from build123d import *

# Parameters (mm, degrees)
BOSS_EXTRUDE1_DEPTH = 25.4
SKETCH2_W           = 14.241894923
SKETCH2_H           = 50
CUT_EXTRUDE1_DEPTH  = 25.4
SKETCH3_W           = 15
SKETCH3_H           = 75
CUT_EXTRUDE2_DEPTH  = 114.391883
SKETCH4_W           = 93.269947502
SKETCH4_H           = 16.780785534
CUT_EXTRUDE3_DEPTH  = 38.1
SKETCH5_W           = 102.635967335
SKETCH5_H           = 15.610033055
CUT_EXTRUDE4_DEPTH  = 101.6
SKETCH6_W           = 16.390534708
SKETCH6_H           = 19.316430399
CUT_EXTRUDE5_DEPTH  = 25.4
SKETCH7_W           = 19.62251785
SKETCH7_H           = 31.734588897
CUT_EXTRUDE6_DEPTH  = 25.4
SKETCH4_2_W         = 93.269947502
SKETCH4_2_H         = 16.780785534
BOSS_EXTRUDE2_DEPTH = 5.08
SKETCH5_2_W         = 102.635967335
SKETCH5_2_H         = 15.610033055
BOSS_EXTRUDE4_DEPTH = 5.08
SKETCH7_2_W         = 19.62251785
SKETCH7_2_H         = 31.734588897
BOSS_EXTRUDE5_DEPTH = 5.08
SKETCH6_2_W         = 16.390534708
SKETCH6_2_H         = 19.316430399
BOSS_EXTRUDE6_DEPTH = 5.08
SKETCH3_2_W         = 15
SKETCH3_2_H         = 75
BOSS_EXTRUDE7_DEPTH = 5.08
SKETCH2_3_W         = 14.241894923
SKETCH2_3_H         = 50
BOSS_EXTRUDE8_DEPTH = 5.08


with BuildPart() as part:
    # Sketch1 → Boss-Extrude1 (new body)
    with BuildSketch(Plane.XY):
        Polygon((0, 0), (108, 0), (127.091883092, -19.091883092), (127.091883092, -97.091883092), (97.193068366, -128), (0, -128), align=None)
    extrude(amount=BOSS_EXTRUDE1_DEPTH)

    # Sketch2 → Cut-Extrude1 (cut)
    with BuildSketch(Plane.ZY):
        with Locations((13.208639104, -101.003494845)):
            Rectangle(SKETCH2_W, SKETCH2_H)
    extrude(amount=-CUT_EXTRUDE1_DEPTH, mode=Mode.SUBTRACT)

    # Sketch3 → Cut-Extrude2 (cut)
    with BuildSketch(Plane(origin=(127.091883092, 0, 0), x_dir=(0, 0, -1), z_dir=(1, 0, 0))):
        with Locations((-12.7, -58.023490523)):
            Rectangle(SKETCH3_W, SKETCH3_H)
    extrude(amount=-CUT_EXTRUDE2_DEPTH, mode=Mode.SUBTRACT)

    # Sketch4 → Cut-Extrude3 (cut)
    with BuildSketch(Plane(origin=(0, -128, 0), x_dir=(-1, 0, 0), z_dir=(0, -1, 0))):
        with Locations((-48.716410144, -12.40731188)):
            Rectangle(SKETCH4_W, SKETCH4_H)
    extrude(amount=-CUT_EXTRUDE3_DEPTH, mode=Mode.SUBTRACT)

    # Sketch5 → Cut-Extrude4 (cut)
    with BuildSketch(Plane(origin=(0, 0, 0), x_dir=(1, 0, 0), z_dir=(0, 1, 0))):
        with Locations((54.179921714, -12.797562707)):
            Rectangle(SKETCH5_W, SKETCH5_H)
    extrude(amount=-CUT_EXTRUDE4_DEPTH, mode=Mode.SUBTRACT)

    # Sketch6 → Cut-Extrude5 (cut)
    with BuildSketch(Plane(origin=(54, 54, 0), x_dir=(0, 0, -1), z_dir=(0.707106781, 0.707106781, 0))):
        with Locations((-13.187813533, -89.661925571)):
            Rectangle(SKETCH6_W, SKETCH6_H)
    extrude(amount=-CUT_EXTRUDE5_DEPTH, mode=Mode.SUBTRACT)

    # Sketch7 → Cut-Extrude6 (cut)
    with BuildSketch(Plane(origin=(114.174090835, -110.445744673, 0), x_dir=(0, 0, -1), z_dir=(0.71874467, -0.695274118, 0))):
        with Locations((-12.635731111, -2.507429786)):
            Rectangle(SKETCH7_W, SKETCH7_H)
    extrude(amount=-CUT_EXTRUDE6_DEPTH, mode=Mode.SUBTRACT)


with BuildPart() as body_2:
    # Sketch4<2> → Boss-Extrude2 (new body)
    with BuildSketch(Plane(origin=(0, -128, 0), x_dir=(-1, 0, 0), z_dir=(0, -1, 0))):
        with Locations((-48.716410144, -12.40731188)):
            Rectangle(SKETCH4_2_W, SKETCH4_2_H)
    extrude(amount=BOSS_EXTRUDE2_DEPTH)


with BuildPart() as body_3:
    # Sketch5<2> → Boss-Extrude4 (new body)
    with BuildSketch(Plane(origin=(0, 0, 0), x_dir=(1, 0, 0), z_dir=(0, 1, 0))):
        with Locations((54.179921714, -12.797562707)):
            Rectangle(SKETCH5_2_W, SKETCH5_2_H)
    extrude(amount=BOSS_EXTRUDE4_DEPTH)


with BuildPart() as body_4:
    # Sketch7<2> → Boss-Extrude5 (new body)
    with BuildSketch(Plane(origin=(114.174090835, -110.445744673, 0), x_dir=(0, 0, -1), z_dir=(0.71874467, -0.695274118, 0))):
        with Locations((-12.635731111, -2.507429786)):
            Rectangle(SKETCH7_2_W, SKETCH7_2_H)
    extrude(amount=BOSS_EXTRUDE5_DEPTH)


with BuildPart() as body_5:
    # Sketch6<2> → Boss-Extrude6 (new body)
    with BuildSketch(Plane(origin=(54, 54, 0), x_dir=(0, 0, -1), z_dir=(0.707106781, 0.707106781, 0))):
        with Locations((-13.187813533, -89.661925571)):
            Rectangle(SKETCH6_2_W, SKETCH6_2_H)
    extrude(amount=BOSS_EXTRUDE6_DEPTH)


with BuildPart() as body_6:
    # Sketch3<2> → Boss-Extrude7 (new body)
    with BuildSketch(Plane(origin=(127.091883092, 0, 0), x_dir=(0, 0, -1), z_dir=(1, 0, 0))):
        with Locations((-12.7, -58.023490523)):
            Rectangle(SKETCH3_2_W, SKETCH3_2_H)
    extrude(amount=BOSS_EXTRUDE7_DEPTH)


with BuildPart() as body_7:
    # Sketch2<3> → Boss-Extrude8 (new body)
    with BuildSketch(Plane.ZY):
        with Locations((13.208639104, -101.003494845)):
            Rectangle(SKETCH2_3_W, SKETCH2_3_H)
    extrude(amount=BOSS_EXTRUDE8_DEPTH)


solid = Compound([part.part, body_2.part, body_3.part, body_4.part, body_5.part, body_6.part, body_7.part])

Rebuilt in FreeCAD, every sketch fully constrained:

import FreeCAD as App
import Part
import Sketcher

V = App.Vector
Q = App.Units.Quantity

doc = App.newDocument("Part")
params = doc.addObject("Spreadsheet::Sheet", "Params")
for row, (alias, value) in enumerate([
    ("sketch1_width", "108 mm"),
    ("sketch1_height", "128 mm"),
    ("sketch1_height2", "78 mm"),
    ("sketch1_length", "27 mm"),
    ("pad1_length", "25.4 mm"),
    ("sketch2_width", "50 mm"),
    ("pocket1_length", "25.4 mm"),
    ("sketch3_width", "75 mm"),
    ("sketch3_height", "15 mm"),
    ("pocket2_length", "114.391883 mm"),
    ("pocket3_length", "38.1 mm"),
    ("pocket4_length", "101.6 mm"),
    ("pocket5_length", "25.4 mm"),
    ("pocket6_length", "25.4 mm"),
    ("pad2_length", "5.08 mm"),
    ("pad3_length", "5.08 mm"),
    ("pad4_length", "5.08 mm"),
    ("pad5_length", "5.08 mm"),
    ("sketch12_width", "75 mm"),
    ("sketch12_height", "15 mm"),
    ("pad6_length", "5.08 mm"),
    ("sketch13_width", "50 mm"),
    ("pad7_length", "5.08 mm"),
], start=1):
    params.set(f"A{row}", alias)
    params.set(f"B{row}", "=" + value)
    params.setAlias(f"B{row}", alias)

body = doc.addObject("PartDesign::Body", "Body")

# Sketch on XY plane
sketch1 = body.newObject("Sketcher::SketchObject", "Sketch")
sketch1.AttachmentSupport = (doc.getObject("XY_Plane"), [""])
sketch1.MapMode = "FlatFace"
sketch1.addGeometry(Part.LineSegment(V(108, 0, 0), V(0, 0, 0)), False)
sketch1.addGeometry(Part.LineSegment(V(0, 0, 0), V(0, -128, 0)), False)
sketch1.addGeometry(Part.LineSegment(V(0, -128, 0), V(97, -128, 0)), False)
sketch1.addGeometry(Part.LineSegment(V(97, -128, 0), V(127, -97, 0)), False)
sketch1.addGeometry(Part.LineSegment(V(127, -97, 0), V(127, -19, 0)), False)
sketch1.addGeometry(Part.LineSegment(V(127, -19, 0), V(108, 0, 0)), False)
sketch1.addConstraint(Sketcher.Constraint("Coincident", 0, 2, 1, 1))
sketch1.addConstraint(Sketcher.Constraint("Coincident", 1, 2, 2, 1))
sketch1.addConstraint(Sketcher.Constraint("Coincident", 2, 2, 3, 1))
sketch1.addConstraint(Sketcher.Constraint("Coincident", 3, 2, 4, 1))
sketch1.addConstraint(Sketcher.Constraint("Coincident", 4, 2, 5, 1))
sketch1.addConstraint(Sketcher.Constraint("Coincident", 5, 2, 0, 1))
sketch1.addConstraint(Sketcher.Constraint("Horizontal", 0))
sketch1.addConstraint(Sketcher.Constraint("Vertical", 1))
sketch1.addConstraint(Sketcher.Constraint("Horizontal", 2))
sketch1.addConstraint(Sketcher.Constraint("Vertical", 4))
sketch1.addConstraint(Sketcher.Constraint("Coincident", 0, 2, -1, 1))
sketch1.addConstraint(Sketcher.Constraint("DistanceX", 0, 2, 0, 1, 108.0))
sketch1.addConstraint(Sketcher.Constraint("DistanceY", 1, 2, 1, 1, 128.0))
sketch1.addConstraint(Sketcher.Constraint("DistanceY", 4, 1, 4, 2, 78.0))
sketch1.addConstraint(Sketcher.Constraint("Angle", 5, Q("135 deg")))
sketch1.addConstraint(Sketcher.Constraint("Distance", 5, 27.0))
sketch1.addConstraint(Sketcher.Constraint("DistanceX", 2, 1, 2, 2, 97.193068))
sketch1.setExpression("Constraints[11]", "Params.sketch1_width")
sketch1.setExpression("Constraints[12]", "Params.sketch1_height")
sketch1.setExpression("Constraints[13]", "Params.sketch1_height2")
sketch1.setExpression("Constraints[15]", "Params.sketch1_length")
pad1 = body.newObject("PartDesign::Pad", "Pad")
pad1.Profile = sketch1
pad1.setExpression("Length", "Params.pad1_length")

# Sketch on YZ plane
sketch2 = body.newObject("Sketcher::SketchObject", "Sketch001")
sketch2.AttachmentSupport = (doc.getObject("YZ_Plane"), [""])
sketch2.MapMode = "FlatFace"
sketch2.addGeometry(Part.LineSegment(V(-76, 6, 0), V(-126, 6, 0)), False)
sketch2.addGeometry(Part.LineSegment(V(-126, 6, 0), V(-126, 20, 0)), False)
sketch2.addGeometry(Part.LineSegment(V(-126, 20, 0), V(-76, 20, 0)), False)
sketch2.addGeometry(Part.LineSegment(V(-76, 20, 0), V(-76, 6, 0)), False)
sketch2.addConstraint(Sketcher.Constraint("Coincident", 0, 2, 1, 1))
sketch2.addConstraint(Sketcher.Constraint("Coincident", 1, 2, 2, 1))
sketch2.addConstraint(Sketcher.Constraint("Coincident", 2, 2, 3, 1))
sketch2.addConstraint(Sketcher.Constraint("Coincident", 3, 2, 0, 1))
sketch2.addConstraint(Sketcher.Constraint("Horizontal", 0))
sketch2.addConstraint(Sketcher.Constraint("Vertical", 1))
sketch2.addConstraint(Sketcher.Constraint("Horizontal", 2))
sketch2.addConstraint(Sketcher.Constraint("Vertical", 3))
sketch2.addConstraint(Sketcher.Constraint("DistanceX", 0, 2, 0, 1, 50.0))
sketch2.addConstraint(Sketcher.Constraint("DistanceY", 1, 1, 1, 2, 14.241895))
sketch2.addConstraint(Sketcher.Constraint("DistanceY", -1, 1, 0, 2, 6.087692))
sketch2.addConstraint(Sketcher.Constraint("DistanceX", 0, 2, -1, 1, 126.003495))
sketch2.setExpression("Constraints[8]", "Params.sketch2_width")
pocket1 = body.newObject("PartDesign::Pocket", "Pocket")
pocket1.Profile = sketch2
pocket1.setExpression("Length", "Params.pocket1_length")
pocket1.Reversed = True

# Sketch on YZ plane
sketch3 = body.newObject("Sketcher::SketchObject", "Sketch002")
sketch3.AttachmentSupport = (doc.getObject("YZ_Plane"), [""])
sketch3.MapMode = "FlatFace"
sketch3.AttachmentOffset = App.Placement(V(0, 0, 127.091883), App.Rotation())
sketch3.addGeometry(Part.LineSegment(V(-21, 20, 0), V(-96, 20, 0)), False)
sketch3.addGeometry(Part.LineSegment(V(-96, 20, 0), V(-96, 5, 0)), False)
sketch3.addGeometry(Part.LineSegment(V(-96, 5, 0), V(-21, 5, 0)), False)
sketch3.addGeometry(Part.LineSegment(V(-21, 5, 0), V(-21, 20, 0)), False)
sketch3.addConstraint(Sketcher.Constraint("Coincident", 0, 2, 1, 1))
sketch3.addConstraint(Sketcher.Constraint("Coincident", 1, 2, 2, 1))
sketch3.addConstraint(Sketcher.Constraint("Coincident", 2, 2, 3, 1))
sketch3.addConstraint(Sketcher.Constraint("Coincident", 3, 2, 0, 1))
sketch3.addConstraint(Sketcher.Constraint("Horizontal", 0))
sketch3.addConstraint(Sketcher.Constraint("Vertical", 1))
sketch3.addConstraint(Sketcher.Constraint("Horizontal", 2))
sketch3.addConstraint(Sketcher.Constraint("Vertical", 3))
sketch3.addConstraint(Sketcher.Constraint("DistanceX", 0, 2, 0, 1, 75.0))
sketch3.addConstraint(Sketcher.Constraint("DistanceY", 1, 2, 1, 1, 15.0))
sketch3.addConstraint(Sketcher.Constraint("DistanceY", -1, 1, 0, 2, 20.2))
sketch3.addConstraint(Sketcher.Constraint("DistanceX", 0, 2, -1, 1, 95.523491))
sketch3.setExpression("Constraints[8]", "Params.sketch3_width")
sketch3.setExpression("Constraints[9]", "Params.sketch3_height")
pocket2 = body.newObject("PartDesign::Pocket", "Pocket001")
pocket2.Profile = sketch3
pocket2.setExpression("Length", "Params.pocket2_length")

# Sketch on XZ plane
sketch4 = body.newObject("Sketcher::SketchObject", "Sketch003")
sketch4.AttachmentSupport = (doc.getObject("XZ_Plane"), [""])
sketch4.MapMode = "FlatFace"
sketch4.AttachmentOffset = App.Placement(V(0, 0, 128), App.Rotation())
sketch4.addGeometry(Part.LineSegment(V(95, 4, 0), V(95, 21, 0)), False)
sketch4.addGeometry(Part.LineSegment(V(95, 21, 0), V(2, 21, 0)), False)
sketch4.addGeometry(Part.LineSegment(V(2, 21, 0), V(2, 4, 0)), False)
sketch4.addGeometry(Part.LineSegment(V(2, 4, 0), V(95, 4, 0)), False)
sketch4.addConstraint(Sketcher.Constraint("Coincident", 0, 2, 1, 1))
sketch4.addConstraint(Sketcher.Constraint("Coincident", 1, 2, 2, 1))
sketch4.addConstraint(Sketcher.Constraint("Coincident", 2, 2, 3, 1))
sketch4.addConstraint(Sketcher.Constraint("Coincident", 3, 2, 0, 1))
sketch4.addConstraint(Sketcher.Constraint("Vertical", 0))
sketch4.addConstraint(Sketcher.Constraint("Horizontal", 1))
sketch4.addConstraint(Sketcher.Constraint("Vertical", 2))
sketch4.addConstraint(Sketcher.Constraint("Horizontal", 3))
sketch4.addConstraint(Sketcher.Constraint("DistanceX", 1, 2, 1, 1, 93.269948))
sketch4.addConstraint(Sketcher.Constraint("DistanceY", 0, 1, 0, 2, 16.780786))
sketch4.addConstraint(Sketcher.Constraint("DistanceY", -1, 1, 2, 2, 4.016919))
sketch4.addConstraint(Sketcher.Constraint("DistanceX", -1, 1, 0, 2, 95.351384))
pocket3 = body.newObject("PartDesign::Pocket", "Pocket002")
pocket3.Profile = sketch4
pocket3.setExpression("Length", "Params.pocket3_length")

# Sketch on XZ plane
sketch5 = body.newObject("Sketcher::SketchObject", "Sketch004")
sketch5.AttachmentSupport = (doc.getObject("XZ_Plane"), [""])
sketch5.MapMode = "FlatFace"
sketch5.addGeometry(Part.LineSegment(V(3, 5, 0), V(3, 21, 0)), False)
sketch5.addGeometry(Part.LineSegment(V(3, 21, 0), V(105, 21, 0)), False)
sketch5.addGeometry(Part.LineSegment(V(105, 21, 0), V(105, 5, 0)), False)
sketch5.addGeometry(Part.LineSegment(V(105, 5, 0), V(3, 5, 0)), False)
sketch5.addConstraint(Sketcher.Constraint("Coincident", 0, 2, 1, 1))
sketch5.addConstraint(Sketcher.Constraint("Coincident", 1, 2, 2, 1))
sketch5.addConstraint(Sketcher.Constraint("Coincident", 2, 2, 3, 1))
sketch5.addConstraint(Sketcher.Constraint("Coincident", 3, 2, 0, 1))
sketch5.addConstraint(Sketcher.Constraint("Vertical", 0))
sketch5.addConstraint(Sketcher.Constraint("Horizontal", 1))
sketch5.addConstraint(Sketcher.Constraint("Vertical", 2))
sketch5.addConstraint(Sketcher.Constraint("Horizontal", 3))
sketch5.addConstraint(Sketcher.Constraint("DistanceX", 1, 1, 1, 2, 102.635967))
sketch5.addConstraint(Sketcher.Constraint("DistanceY", 0, 1, 0, 2, 15.610033))
sketch5.addConstraint(Sketcher.Constraint("DistanceX", -1, 1, 0, 2, 2.861938))
sketch5.addConstraint(Sketcher.Constraint("DistanceY", -1, 1, 0, 2, 20.602579))
pocket4 = body.newObject("PartDesign::Pocket", "Pocket003")
pocket4.Profile = sketch5
pocket4.setExpression("Length", "Params.pocket4_length")
pocket4.Reversed = True

# Sketch on an angled plane
sketch6 = body.newObject("Sketcher::SketchObject", "Sketch005")
sketch6.Placement = App.Placement(V(54, 54, 0), App.Rotation(V(0, 0, -1), V(-0.707106781, 0.707106781, 0), V(0.707106781, 0.707106781, 0), "ZXY"))
sketch6.addGeometry(Part.LineSegment(V(-21, -80, 0), V(-21, -99, 0)), False)
sketch6.addGeometry(Part.LineSegment(V(-21, -99, 0), V(-5, -99, 0)), False)
sketch6.addGeometry(Part.LineSegment(V(-5, -99, 0), V(-5, -80, 0)), False)
sketch6.addGeometry(Part.LineSegment(V(-5, -80, 0), V(-21, -80, 0)), False)
sketch6.addConstraint(Sketcher.Constraint("Coincident", 0, 2, 1, 1))
sketch6.addConstraint(Sketcher.Constraint("Coincident", 1, 2, 2, 1))
sketch6.addConstraint(Sketcher.Constraint("Coincident", 2, 2, 3, 1))
sketch6.addConstraint(Sketcher.Constraint("Coincident", 3, 2, 0, 1))
sketch6.addConstraint(Sketcher.Constraint("Vertical", 0))
sketch6.addConstraint(Sketcher.Constraint("Horizontal", 1))
sketch6.addConstraint(Sketcher.Constraint("Vertical", 2))
sketch6.addConstraint(Sketcher.Constraint("Horizontal", 3))
sketch6.addConstraint(Sketcher.Constraint("DistanceY", 0, 2, 0, 1, 19.31643))
sketch6.addConstraint(Sketcher.Constraint("DistanceX", 1, 1, 1, 2, 16.390535))
sketch6.addConstraint(Sketcher.Constraint("DistanceX", 0, 2, -1, 1, 21.383081))
sketch6.addConstraint(Sketcher.Constraint("DistanceY", 0, 2, -1, 1, 99.320141))
pocket5 = body.newObject("PartDesign::Pocket", "Pocket004")
pocket5.Profile = sketch6
pocket5.setExpression("Length", "Params.pocket5_length")

# Sketch on an angled plane
sketch7 = body.newObject("Sketcher::SketchObject", "Sketch006")
sketch7.Placement = App.Placement(V(114.174091, -110.445745, 0), App.Rotation(V(0, 0, -1), V(0.695274118, 0.71874467, 0), V(0.71874467, -0.695274118, 0), "ZXY"))
sketch7.addGeometry(Part.LineSegment(V(-22, 13, 0), V(-22, -18, 0)), False)
sketch7.addGeometry(Part.LineSegment(V(-22, -18, 0), V(-3, -18, 0)), False)
sketch7.addGeometry(Part.LineSegment(V(-3, -18, 0), V(-3, 13, 0)), False)
sketch7.addGeometry(Part.LineSegment(V(-3, 13, 0), V(-22, 13, 0)), False)
sketch7.addConstraint(Sketcher.Constraint("Coincident", 0, 2, 1, 1))
sketch7.addConstraint(Sketcher.Constraint("Coincident", 1, 2, 2, 1))
sketch7.addConstraint(Sketcher.Constraint("Coincident", 2, 2, 3, 1))
sketch7.addConstraint(Sketcher.Constraint("Coincident", 3, 2, 0, 1))
sketch7.addConstraint(Sketcher.Constraint("Vertical", 0))
sketch7.addConstraint(Sketcher.Constraint("Horizontal", 1))
sketch7.addConstraint(Sketcher.Constraint("Vertical", 2))
sketch7.addConstraint(Sketcher.Constraint("Horizontal", 3))
sketch7.addConstraint(Sketcher.Constraint("DistanceY", 0, 2, 0, 1, 31.734589))
sketch7.addConstraint(Sketcher.Constraint("DistanceX", 1, 1, 1, 2, 19.622518))
sketch7.addConstraint(Sketcher.Constraint("DistanceX", 0, 2, -1, 1, 22.44699))
sketch7.addConstraint(Sketcher.Constraint("DistanceY", 0, 2, -1, 1, 18.374724))
pocket6 = body.newObject("PartDesign::Pocket", "Pocket005")
pocket6.Profile = sketch7
pocket6.setExpression("Length", "Params.pocket6_length")
body2 = doc.addObject("PartDesign::Body", "Body001")

# Sketch on XZ plane
sketch8 = body2.newObject("Sketcher::SketchObject", "Sketch007")
sketch8.AttachmentSupport = (doc.getObject("XZ_Plane001"), [""])
sketch8.MapMode = "FlatFace"
sketch8.AttachmentOffset = App.Placement(V(0, 0, 128), App.Rotation())
sketch8.addGeometry(Part.LineSegment(V(95, 4, 0), V(95, 21, 0)), False)
sketch8.addGeometry(Part.LineSegment(V(95, 21, 0), V(2, 21, 0)), False)
sketch8.addGeometry(Part.LineSegment(V(2, 21, 0), V(2, 4, 0)), False)
sketch8.addGeometry(Part.LineSegment(V(2, 4, 0), V(95, 4, 0)), False)
sketch8.addConstraint(Sketcher.Constraint("Coincident", 0, 2, 1, 1))
sketch8.addConstraint(Sketcher.Constraint("Coincident", 1, 2, 2, 1))
sketch8.addConstraint(Sketcher.Constraint("Coincident", 2, 2, 3, 1))
sketch8.addConstraint(Sketcher.Constraint("Coincident", 3, 2, 0, 1))
sketch8.addConstraint(Sketcher.Constraint("Vertical", 0))
sketch8.addConstraint(Sketcher.Constraint("Horizontal", 1))
sketch8.addConstraint(Sketcher.Constraint("Vertical", 2))
sketch8.addConstraint(Sketcher.Constraint("Horizontal", 3))
sketch8.addConstraint(Sketcher.Constraint("DistanceX", 1, 2, 1, 1, 93.269948))
sketch8.addConstraint(Sketcher.Constraint("DistanceY", 0, 1, 0, 2, 16.780786))
sketch8.addConstraint(Sketcher.Constraint("DistanceY", -1, 1, 2, 2, 4.016919))
sketch8.addConstraint(Sketcher.Constraint("DistanceX", -1, 1, 0, 2, 95.351384))
pad2 = body2.newObject("PartDesign::Pad", "Pad001")
pad2.Profile = sketch8
pad2.setExpression("Length", "Params.pad2_length")
body3 = doc.addObject("PartDesign::Body", "Body002")

# Sketch on XZ plane
sketch9 = body3.newObject("Sketcher::SketchObject", "Sketch008")
sketch9.AttachmentSupport = (doc.getObject("XZ_Plane002"), [""])
sketch9.MapMode = "FlatFace"
sketch9.addGeometry(Part.LineSegment(V(3, 5, 0), V(3, 21, 0)), False)
sketch9.addGeometry(Part.LineSegment(V(3, 21, 0), V(105, 21, 0)), False)
sketch9.addGeometry(Part.LineSegment(V(105, 21, 0), V(105, 5, 0)), False)
sketch9.addGeometry(Part.LineSegment(V(105, 5, 0), V(3, 5, 0)), False)
sketch9.addConstraint(Sketcher.Constraint("Coincident", 0, 2, 1, 1))
sketch9.addConstraint(Sketcher.Constraint("Coincident", 1, 2, 2, 1))
sketch9.addConstraint(Sketcher.Constraint("Coincident", 2, 2, 3, 1))
sketch9.addConstraint(Sketcher.Constraint("Coincident", 3, 2, 0, 1))
sketch9.addConstraint(Sketcher.Constraint("Vertical", 0))
sketch9.addConstraint(Sketcher.Constraint("Horizontal", 1))
sketch9.addConstraint(Sketcher.Constraint("Vertical", 2))
sketch9.addConstraint(Sketcher.Constraint("Horizontal", 3))
sketch9.addConstraint(Sketcher.Constraint("DistanceX", 1, 1, 1, 2, 102.635967))
sketch9.addConstraint(Sketcher.Constraint("DistanceY", 0, 1, 0, 2, 15.610033))
sketch9.addConstraint(Sketcher.Constraint("DistanceX", -1, 1, 0, 2, 2.861938))
sketch9.addConstraint(Sketcher.Constraint("DistanceY", -1, 1, 0, 2, 20.602579))
pad3 = body3.newObject("PartDesign::Pad", "Pad002")
pad3.Profile = sketch9
pad3.setExpression("Length", "Params.pad3_length")
pad3.Reversed = True
body4 = doc.addObject("PartDesign::Body", "Body003")

# Sketch on an angled plane
sketch10 = body4.newObject("Sketcher::SketchObject", "Sketch009")
sketch10.Placement = App.Placement(V(114.174091, -110.445745, 0), App.Rotation(V(0, 0, -1), V(0.695274118, 0.71874467, 0), V(0.71874467, -0.695274118, 0), "ZXY"))
sketch10.addGeometry(Part.LineSegment(V(-22, 13, 0), V(-22, -18, 0)), False)
sketch10.addGeometry(Part.LineSegment(V(-22, -18, 0), V(-3, -18, 0)), False)
sketch10.addGeometry(Part.LineSegment(V(-3, -18, 0), V(-3, 13, 0)), False)
sketch10.addGeometry(Part.LineSegment(V(-3, 13, 0), V(-22, 13, 0)), False)
sketch10.addConstraint(Sketcher.Constraint("Coincident", 0, 2, 1, 1))
sketch10.addConstraint(Sketcher.Constraint("Coincident", 1, 2, 2, 1))
sketch10.addConstraint(Sketcher.Constraint("Coincident", 2, 2, 3, 1))
sketch10.addConstraint(Sketcher.Constraint("Coincident", 3, 2, 0, 1))
sketch10.addConstraint(Sketcher.Constraint("Vertical", 0))
sketch10.addConstraint(Sketcher.Constraint("Horizontal", 1))
sketch10.addConstraint(Sketcher.Constraint("Vertical", 2))
sketch10.addConstraint(Sketcher.Constraint("Horizontal", 3))
sketch10.addConstraint(Sketcher.Constraint("DistanceY", 0, 2, 0, 1, 31.734589))
sketch10.addConstraint(Sketcher.Constraint("DistanceX", 1, 1, 1, 2, 19.622518))
sketch10.addConstraint(Sketcher.Constraint("DistanceX", 0, 2, -1, 1, 22.44699))
sketch10.addConstraint(Sketcher.Constraint("DistanceY", 0, 2, -1, 1, 18.374724))
pad4 = body4.newObject("PartDesign::Pad", "Pad003")
pad4.Profile = sketch10
pad4.setExpression("Length", "Params.pad4_length")
body5 = doc.addObject("PartDesign::Body", "Body004")

# Sketch on an angled plane
sketch11 = body5.newObject("Sketcher::SketchObject", "Sketch010")
sketch11.Placement = App.Placement(V(54, 54, 0), App.Rotation(V(0, 0, -1), V(-0.707106781, 0.707106781, 0), V(0.707106781, 0.707106781, 0), "ZXY"))
sketch11.addGeometry(Part.LineSegment(V(-21, -80, 0), V(-21, -99, 0)), False)
sketch11.addGeometry(Part.LineSegment(V(-21, -99, 0), V(-5, -99, 0)), False)
sketch11.addGeometry(Part.LineSegment(V(-5, -99, 0), V(-5, -80, 0)), False)
sketch11.addGeometry(Part.LineSegment(V(-5, -80, 0), V(-21, -80, 0)), False)
sketch11.addConstraint(Sketcher.Constraint("Coincident", 0, 2, 1, 1))
sketch11.addConstraint(Sketcher.Constraint("Coincident", 1, 2, 2, 1))
sketch11.addConstraint(Sketcher.Constraint("Coincident", 2, 2, 3, 1))
sketch11.addConstraint(Sketcher.Constraint("Coincident", 3, 2, 0, 1))
sketch11.addConstraint(Sketcher.Constraint("Vertical", 0))
sketch11.addConstraint(Sketcher.Constraint("Horizontal", 1))
sketch11.addConstraint(Sketcher.Constraint("Vertical", 2))
sketch11.addConstraint(Sketcher.Constraint("Horizontal", 3))
sketch11.addConstraint(Sketcher.Constraint("DistanceY", 0, 2, 0, 1, 19.31643))
sketch11.addConstraint(Sketcher.Constraint("DistanceX", 1, 1, 1, 2, 16.390535))
sketch11.addConstraint(Sketcher.Constraint("DistanceX", 0, 2, -1, 1, 21.383081))
sketch11.addConstraint(Sketcher.Constraint("DistanceY", 0, 2, -1, 1, 99.320141))
pad5 = body5.newObject("PartDesign::Pad", "Pad004")
pad5.Profile = sketch11
pad5.setExpression("Length", "Params.pad5_length")
body6 = doc.addObject("PartDesign::Body", "Body005")

# Sketch on YZ plane
sketch12 = body6.newObject("Sketcher::SketchObject", "Sketch011")
sketch12.AttachmentSupport = (doc.getObject("YZ_Plane005"), [""])
sketch12.MapMode = "FlatFace"
sketch12.AttachmentOffset = App.Placement(V(0, 0, 127.091883), App.Rotation())
sketch12.addGeometry(Part.LineSegment(V(-21, 20, 0), V(-96, 20, 0)), False)
sketch12.addGeometry(Part.LineSegment(V(-96, 20, 0), V(-96, 5, 0)), False)
sketch12.addGeometry(Part.LineSegment(V(-96, 5, 0), V(-21, 5, 0)), False)
sketch12.addGeometry(Part.LineSegment(V(-21, 5, 0), V(-21, 20, 0)), False)
sketch12.addConstraint(Sketcher.Constraint("Coincident", 0, 2, 1, 1))
sketch12.addConstraint(Sketcher.Constraint("Coincident", 1, 2, 2, 1))
sketch12.addConstraint(Sketcher.Constraint("Coincident", 2, 2, 3, 1))
sketch12.addConstraint(Sketcher.Constraint("Coincident", 3, 2, 0, 1))
sketch12.addConstraint(Sketcher.Constraint("Horizontal", 0))
sketch12.addConstraint(Sketcher.Constraint("Vertical", 1))
sketch12.addConstraint(Sketcher.Constraint("Horizontal", 2))
sketch12.addConstraint(Sketcher.Constraint("Vertical", 3))
sketch12.addConstraint(Sketcher.Constraint("DistanceX", 0, 2, 0, 1, 75.0))
sketch12.addConstraint(Sketcher.Constraint("DistanceY", 1, 2, 1, 1, 15.0))
sketch12.addConstraint(Sketcher.Constraint("DistanceY", -1, 1, 0, 2, 20.2))
sketch12.addConstraint(Sketcher.Constraint("DistanceX", 0, 2, -1, 1, 95.523491))
sketch12.setExpression("Constraints[8]", "Params.sketch12_width")
sketch12.setExpression("Constraints[9]", "Params.sketch12_height")
pad6 = body6.newObject("PartDesign::Pad", "Pad005")
pad6.Profile = sketch12
pad6.setExpression("Length", "Params.pad6_length")
body7 = doc.addObject("PartDesign::Body", "Body006")

# Sketch on YZ plane
sketch13 = body7.newObject("Sketcher::SketchObject", "Sketch012")
sketch13.AttachmentSupport = (doc.getObject("YZ_Plane006"), [""])
sketch13.MapMode = "FlatFace"
sketch13.addGeometry(Part.LineSegment(V(-76, 6, 0), V(-126, 6, 0)), False)
sketch13.addGeometry(Part.LineSegment(V(-126, 6, 0), V(-126, 20, 0)), False)
sketch13.addGeometry(Part.LineSegment(V(-126, 20, 0), V(-76, 20, 0)), False)
sketch13.addGeometry(Part.LineSegment(V(-76, 20, 0), V(-76, 6, 0)), False)
sketch13.addConstraint(Sketcher.Constraint("Coincident", 0, 2, 1, 1))
sketch13.addConstraint(Sketcher.Constraint("Coincident", 1, 2, 2, 1))
sketch13.addConstraint(Sketcher.Constraint("Coincident", 2, 2, 3, 1))
sketch13.addConstraint(Sketcher.Constraint("Coincident", 3, 2, 0, 1))
sketch13.addConstraint(Sketcher.Constraint("Horizontal", 0))
sketch13.addConstraint(Sketcher.Constraint("Vertical", 1))
sketch13.addConstraint(Sketcher.Constraint("Horizontal", 2))
sketch13.addConstraint(Sketcher.Constraint("Vertical", 3))
sketch13.addConstraint(Sketcher.Constraint("DistanceX", 0, 2, 0, 1, 50.0))
sketch13.addConstraint(Sketcher.Constraint("DistanceY", 1, 1, 1, 2, 14.241895))
sketch13.addConstraint(Sketcher.Constraint("DistanceY", -1, 1, 0, 2, 6.087692))
sketch13.addConstraint(Sketcher.Constraint("DistanceX", 0, 2, -1, 1, 126.003495))
sketch13.setExpression("Constraints[8]", "Params.sketch13_width")
pad7 = body7.newObject("PartDesign::Pad", "Pad006")
pad7.Profile = sketch13
pad7.setExpression("Length", "Params.pad7_length")
pad7.Reversed = True

doc.recompute()
